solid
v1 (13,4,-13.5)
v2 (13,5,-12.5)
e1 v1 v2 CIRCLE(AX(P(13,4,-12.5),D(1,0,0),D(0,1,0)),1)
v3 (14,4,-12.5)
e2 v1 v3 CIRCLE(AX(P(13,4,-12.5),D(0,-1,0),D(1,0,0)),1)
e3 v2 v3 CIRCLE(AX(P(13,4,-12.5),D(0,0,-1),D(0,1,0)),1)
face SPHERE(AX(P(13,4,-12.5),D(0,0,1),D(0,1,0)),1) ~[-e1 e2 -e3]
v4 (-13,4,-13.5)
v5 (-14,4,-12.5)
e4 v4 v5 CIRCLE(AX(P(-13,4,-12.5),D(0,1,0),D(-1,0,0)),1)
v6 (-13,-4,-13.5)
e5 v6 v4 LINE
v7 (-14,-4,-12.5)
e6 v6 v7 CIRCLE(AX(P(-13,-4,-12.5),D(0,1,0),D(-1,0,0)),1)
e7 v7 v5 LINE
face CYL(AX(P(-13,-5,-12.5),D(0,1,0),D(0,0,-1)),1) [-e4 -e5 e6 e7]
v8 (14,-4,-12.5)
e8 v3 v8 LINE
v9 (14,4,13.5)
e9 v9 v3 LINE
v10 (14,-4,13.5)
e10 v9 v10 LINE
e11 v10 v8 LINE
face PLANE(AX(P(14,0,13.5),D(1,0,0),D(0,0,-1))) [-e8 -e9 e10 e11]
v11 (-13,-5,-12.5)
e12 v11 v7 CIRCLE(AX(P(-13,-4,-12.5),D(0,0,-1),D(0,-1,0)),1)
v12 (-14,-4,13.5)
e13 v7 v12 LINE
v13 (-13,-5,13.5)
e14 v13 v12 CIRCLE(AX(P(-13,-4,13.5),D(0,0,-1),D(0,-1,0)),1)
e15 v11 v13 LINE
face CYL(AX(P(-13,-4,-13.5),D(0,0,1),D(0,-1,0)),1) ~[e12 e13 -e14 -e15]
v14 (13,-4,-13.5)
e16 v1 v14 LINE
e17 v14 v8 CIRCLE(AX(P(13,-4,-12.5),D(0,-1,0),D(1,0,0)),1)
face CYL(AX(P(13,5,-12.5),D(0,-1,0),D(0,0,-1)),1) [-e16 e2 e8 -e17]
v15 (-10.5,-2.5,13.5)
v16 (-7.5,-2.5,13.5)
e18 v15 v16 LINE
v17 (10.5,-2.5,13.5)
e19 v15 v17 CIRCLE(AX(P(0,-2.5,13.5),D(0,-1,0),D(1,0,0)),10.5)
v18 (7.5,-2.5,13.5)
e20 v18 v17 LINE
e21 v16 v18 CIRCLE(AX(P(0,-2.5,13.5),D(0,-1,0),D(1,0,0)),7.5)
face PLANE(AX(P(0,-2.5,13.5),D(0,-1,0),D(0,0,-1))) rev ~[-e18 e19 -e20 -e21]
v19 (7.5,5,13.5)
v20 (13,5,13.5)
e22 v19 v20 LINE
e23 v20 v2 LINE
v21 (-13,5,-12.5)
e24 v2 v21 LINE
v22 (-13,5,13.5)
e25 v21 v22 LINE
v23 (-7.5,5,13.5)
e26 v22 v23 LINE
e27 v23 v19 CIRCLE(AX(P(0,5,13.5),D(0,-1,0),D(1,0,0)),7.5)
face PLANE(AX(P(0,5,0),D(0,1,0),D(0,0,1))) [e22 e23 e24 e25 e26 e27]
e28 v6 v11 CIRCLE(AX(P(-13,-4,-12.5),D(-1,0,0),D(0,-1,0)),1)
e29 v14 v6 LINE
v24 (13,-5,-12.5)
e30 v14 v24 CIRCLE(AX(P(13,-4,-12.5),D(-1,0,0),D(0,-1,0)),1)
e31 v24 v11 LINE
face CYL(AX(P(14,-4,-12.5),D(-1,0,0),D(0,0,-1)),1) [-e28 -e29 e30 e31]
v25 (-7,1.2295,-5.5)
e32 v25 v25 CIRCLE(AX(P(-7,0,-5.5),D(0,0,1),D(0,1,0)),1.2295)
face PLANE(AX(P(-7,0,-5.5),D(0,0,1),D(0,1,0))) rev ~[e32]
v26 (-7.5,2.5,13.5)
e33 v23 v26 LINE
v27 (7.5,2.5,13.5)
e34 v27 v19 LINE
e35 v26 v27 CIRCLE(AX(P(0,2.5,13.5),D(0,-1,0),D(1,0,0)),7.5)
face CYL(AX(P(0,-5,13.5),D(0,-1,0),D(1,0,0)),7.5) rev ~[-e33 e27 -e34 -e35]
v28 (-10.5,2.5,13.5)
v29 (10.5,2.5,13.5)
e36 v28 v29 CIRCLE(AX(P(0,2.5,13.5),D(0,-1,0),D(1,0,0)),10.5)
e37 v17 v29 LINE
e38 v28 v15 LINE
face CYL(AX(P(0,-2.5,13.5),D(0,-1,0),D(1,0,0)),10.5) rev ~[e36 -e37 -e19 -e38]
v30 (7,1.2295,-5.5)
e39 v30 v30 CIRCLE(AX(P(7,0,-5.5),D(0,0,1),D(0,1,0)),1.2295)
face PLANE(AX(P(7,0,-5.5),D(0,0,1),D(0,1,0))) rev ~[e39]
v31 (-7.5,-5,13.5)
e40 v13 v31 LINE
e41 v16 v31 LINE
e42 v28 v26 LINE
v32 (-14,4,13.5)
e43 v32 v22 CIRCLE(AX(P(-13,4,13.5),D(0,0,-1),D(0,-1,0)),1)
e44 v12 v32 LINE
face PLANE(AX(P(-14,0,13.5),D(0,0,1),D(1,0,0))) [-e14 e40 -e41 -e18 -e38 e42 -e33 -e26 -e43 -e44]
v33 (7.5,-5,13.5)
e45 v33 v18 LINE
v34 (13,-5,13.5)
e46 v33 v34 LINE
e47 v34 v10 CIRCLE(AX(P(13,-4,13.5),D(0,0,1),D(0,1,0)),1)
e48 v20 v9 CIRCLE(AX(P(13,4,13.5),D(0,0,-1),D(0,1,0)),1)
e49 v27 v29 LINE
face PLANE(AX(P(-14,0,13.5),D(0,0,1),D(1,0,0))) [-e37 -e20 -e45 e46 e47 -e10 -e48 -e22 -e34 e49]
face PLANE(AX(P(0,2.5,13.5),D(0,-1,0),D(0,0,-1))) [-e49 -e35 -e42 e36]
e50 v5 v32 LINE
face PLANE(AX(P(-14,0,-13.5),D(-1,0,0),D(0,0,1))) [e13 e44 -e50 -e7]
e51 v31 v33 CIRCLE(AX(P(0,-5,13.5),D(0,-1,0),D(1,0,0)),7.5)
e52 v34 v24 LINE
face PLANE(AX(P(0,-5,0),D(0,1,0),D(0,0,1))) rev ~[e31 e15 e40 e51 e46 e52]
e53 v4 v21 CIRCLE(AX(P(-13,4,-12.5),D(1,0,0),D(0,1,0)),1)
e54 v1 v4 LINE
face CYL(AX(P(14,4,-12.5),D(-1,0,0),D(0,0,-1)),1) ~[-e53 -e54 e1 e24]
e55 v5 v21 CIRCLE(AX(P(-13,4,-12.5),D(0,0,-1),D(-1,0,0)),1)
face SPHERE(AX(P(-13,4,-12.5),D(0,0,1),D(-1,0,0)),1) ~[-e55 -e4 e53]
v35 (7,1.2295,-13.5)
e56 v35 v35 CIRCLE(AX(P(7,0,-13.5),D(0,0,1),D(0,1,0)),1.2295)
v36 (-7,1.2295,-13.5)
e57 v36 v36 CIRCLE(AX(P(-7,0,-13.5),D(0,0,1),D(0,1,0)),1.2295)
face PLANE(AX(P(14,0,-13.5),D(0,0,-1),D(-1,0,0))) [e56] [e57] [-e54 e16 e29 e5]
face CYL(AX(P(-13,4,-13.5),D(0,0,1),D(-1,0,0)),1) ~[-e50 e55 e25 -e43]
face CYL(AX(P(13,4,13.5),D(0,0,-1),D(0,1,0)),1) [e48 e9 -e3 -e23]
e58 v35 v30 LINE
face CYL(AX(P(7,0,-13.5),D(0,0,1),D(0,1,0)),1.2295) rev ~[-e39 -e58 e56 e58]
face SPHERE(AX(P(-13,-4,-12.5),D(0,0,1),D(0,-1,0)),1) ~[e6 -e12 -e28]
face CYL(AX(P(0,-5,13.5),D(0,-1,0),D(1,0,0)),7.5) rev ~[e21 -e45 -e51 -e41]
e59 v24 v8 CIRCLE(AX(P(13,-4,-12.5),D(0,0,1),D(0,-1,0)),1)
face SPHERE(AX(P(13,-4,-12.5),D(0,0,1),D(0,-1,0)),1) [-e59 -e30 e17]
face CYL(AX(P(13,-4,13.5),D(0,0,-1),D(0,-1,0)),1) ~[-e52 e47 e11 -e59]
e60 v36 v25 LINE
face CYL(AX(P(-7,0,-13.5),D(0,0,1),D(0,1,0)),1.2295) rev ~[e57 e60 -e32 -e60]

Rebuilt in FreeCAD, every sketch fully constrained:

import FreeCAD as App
import Part
import Sketcher

V = App.Vector


def edges_at(feature, points):
    """Names of the edges that pass closest to the given points."""
    edges = feature.Shape.Edges
    near = lambda p: min(range(len(edges)), key=lambda i: edges[i].distToShape(Part.Vertex(*p))[0])
    return sorted({f"Edge{near(p) + 1}" for p in points})


def add_polygon(sketch, points):
    """Adds a closed chain of lines whose ends are joined by coincident constraints."""
    first, n = sketch.GeometryCount, len(points)
    for a, b in zip(points, points[1:] + points[:1]):
        sketch.addGeometry(Part.LineSegment(App.Vector(*a, 0), App.Vector(*b, 0)), False)
    for i in range(n):
        sketch.addConstraint(Sketcher.Constraint("Coincident", first + i, 2, first + (i + 1) % n, 1))

doc = App.newDocument("Part")
body = doc.addObject("PartDesign::Body", "Body")

sketch1 = body.newObject("Sketcher::SketchObject", "Sketch")
sketch1.AttachmentSupport = (doc.getObject("XZ_Plane"), [""])
sketch1.MapMode = "FlatFace"
add_polygon(sketch1, [(-14, -13.5), (14, -13.5), (14, 13.5), (-14, 13.5)])
sketch1.addConstraint([
    Sketcher.Constraint("Horizontal", 0),
    Sketcher.Constraint("Vertical", 1),
    Sketcher.Constraint("Horizontal", 2),
    Sketcher.Constraint("Vertical", 3),
    Sketcher.Constraint("Symmetric", 0, 2, 2, 2, -1, 1),
    Sketcher.Constraint("DistanceX", -1, 1, 0, 2, 14.0),
    Sketcher.Constraint("DistanceY", 1, 1, 1, 2, 27.0),
])
pad1 = body.newObject("PartDesign::Pad", "Pad")
pad1.Profile = sketch1
pad1.Length = 10
pad1.Midplane = True

sketch2 = body.newObject("Sketcher::SketchObject", "Sketch001")
sketch2.AttachmentSupport = (doc.getObject("XZ_Plane"), [""])
sketch2.MapMode = "FlatFace"
sketch2.AttachmentOffset = App.Placement(V(0, 0, 2.5), App.Rotation())
sketch2.addGeometry(Part.Circle(V(0, 13.5, 0), V(0, 0, 1), 10.5), False)
sketch2.addConstraint([
    Sketcher.Constraint("PointOnObject", 0, 3, -2),
    Sketcher.Constraint("Diameter", 0, 21.0),
    Sketcher.Constraint("DistanceY", -1, 1, 0, 3, 13.5),
])
pocket1 = body.newObject("PartDesign::Pocket", "Pocket")
pocket1.Profile = sketch2
pocket1.Length = 5
doc.recompute()

fillet = body.newObject("PartDesign::Fillet", "Fillet")
fillet.Base = (pocket1, edges_at(pocket1, [
    (-14, -5, 0),
    (14, -5, 0),
    (-14, 5, 0),
    (14, 5, 0),
    (0, -5, -13.5),
    (-14, 0, -13.5),
    (0, 5, -13.5),
    (14, 0, -13.5),
]))
fillet.Radius = 1

sketch3 = body.newObject("Sketcher::SketchObject", "Sketch002")
sketch3.AttachmentSupport = (doc.getObject("XZ_Plane"), [""])
sketch3.MapMode = "FlatFace"
sketch3.AttachmentOffset = App.Placement(V(0, 0, 5), App.Rotation())
sketch3.addGeometry(Part.Circle(V(0, 13.5, 0), V(0, 0, 1), 7.5), False)
sketch3.addConstraint([
    Sketcher.Constraint("PointOnObject", 0, 3, -2),
    Sketcher.Constraint("Diameter", 0, 15.0),
    Sketcher.Constraint("DistanceY", -1, 1, 0, 3, 13.5),
])
pocket2 = body.newObject("PartDesign::Pocket", "Pocket001")
pocket2.Profile = sketch3
pocket2.Length = 19.0261

sketch4 = body.newObject("Sketcher::SketchObject", "Sketch003")
sketch4.AttachmentSupport = (doc.getObject("XY_Plane"), [""])
sketch4.MapMode = "FlatFace"
sketch4.AttachmentOffset = App.Placement(V(0, 0, -13.5), App.Rotation())
sketch4.addGeometry(Part.Circle(V(-7, 0, 0), V(0, 0, 1), 1.2295), False)
sketch4.addConstraint([
    Sketcher.Constraint("PointOnObject", 0, 3, -1),
    Sketcher.Constraint("Diameter", 0, 2.459),
    Sketcher.Constraint("DistanceX", 0, 3, -1, 1, 7.0),
])
doc.recompute()
hole = body.newObject("PartDesign::Hole", "Hole")
hole.Profile = sketch4
hole.ThreadType = "None"
hole.Diameter = 2.459
hole.DepthType = "Dimension"
hole.Depth = 8
hole.DrillPoint = "Flat"
hole.Reversed = True

sketch5 = body.newObject("Sketcher::SketchObject", "Sketch004")
sketch5.AttachmentSupport = (doc.getObject("XY_Plane"), [""])
sketch5.MapMode = "FlatFace"
sketch5.AttachmentOffset = App.Placement(V(0, 0, -13.5), App.Rotation())
sketch5.addGeometry(Part.Circle(V(7, 0, 0), V(0, 0, 1), 1.2295), False)
sketch5.addConstraint([
    Sketcher.Constraint("PointOnObject", 0, 3, -1),
    Sketcher.Constraint("Diameter", 0, 2.459),
    Sketcher.Constraint("DistanceX", -1, 1, 0, 3, 7.0),
])
doc.recompute()
hole2 = body.newObject("PartDesign::Hole", "Hole001")
hole2.Profile = sketch5
hole2.ThreadType = "None"
hole2.Diameter = 2.459
hole2.DepthType = "Dimension"
hole2.Depth = 8
hole2.DrillPoint = "Flat"
hole2.Reversed = True

doc.recompute()
